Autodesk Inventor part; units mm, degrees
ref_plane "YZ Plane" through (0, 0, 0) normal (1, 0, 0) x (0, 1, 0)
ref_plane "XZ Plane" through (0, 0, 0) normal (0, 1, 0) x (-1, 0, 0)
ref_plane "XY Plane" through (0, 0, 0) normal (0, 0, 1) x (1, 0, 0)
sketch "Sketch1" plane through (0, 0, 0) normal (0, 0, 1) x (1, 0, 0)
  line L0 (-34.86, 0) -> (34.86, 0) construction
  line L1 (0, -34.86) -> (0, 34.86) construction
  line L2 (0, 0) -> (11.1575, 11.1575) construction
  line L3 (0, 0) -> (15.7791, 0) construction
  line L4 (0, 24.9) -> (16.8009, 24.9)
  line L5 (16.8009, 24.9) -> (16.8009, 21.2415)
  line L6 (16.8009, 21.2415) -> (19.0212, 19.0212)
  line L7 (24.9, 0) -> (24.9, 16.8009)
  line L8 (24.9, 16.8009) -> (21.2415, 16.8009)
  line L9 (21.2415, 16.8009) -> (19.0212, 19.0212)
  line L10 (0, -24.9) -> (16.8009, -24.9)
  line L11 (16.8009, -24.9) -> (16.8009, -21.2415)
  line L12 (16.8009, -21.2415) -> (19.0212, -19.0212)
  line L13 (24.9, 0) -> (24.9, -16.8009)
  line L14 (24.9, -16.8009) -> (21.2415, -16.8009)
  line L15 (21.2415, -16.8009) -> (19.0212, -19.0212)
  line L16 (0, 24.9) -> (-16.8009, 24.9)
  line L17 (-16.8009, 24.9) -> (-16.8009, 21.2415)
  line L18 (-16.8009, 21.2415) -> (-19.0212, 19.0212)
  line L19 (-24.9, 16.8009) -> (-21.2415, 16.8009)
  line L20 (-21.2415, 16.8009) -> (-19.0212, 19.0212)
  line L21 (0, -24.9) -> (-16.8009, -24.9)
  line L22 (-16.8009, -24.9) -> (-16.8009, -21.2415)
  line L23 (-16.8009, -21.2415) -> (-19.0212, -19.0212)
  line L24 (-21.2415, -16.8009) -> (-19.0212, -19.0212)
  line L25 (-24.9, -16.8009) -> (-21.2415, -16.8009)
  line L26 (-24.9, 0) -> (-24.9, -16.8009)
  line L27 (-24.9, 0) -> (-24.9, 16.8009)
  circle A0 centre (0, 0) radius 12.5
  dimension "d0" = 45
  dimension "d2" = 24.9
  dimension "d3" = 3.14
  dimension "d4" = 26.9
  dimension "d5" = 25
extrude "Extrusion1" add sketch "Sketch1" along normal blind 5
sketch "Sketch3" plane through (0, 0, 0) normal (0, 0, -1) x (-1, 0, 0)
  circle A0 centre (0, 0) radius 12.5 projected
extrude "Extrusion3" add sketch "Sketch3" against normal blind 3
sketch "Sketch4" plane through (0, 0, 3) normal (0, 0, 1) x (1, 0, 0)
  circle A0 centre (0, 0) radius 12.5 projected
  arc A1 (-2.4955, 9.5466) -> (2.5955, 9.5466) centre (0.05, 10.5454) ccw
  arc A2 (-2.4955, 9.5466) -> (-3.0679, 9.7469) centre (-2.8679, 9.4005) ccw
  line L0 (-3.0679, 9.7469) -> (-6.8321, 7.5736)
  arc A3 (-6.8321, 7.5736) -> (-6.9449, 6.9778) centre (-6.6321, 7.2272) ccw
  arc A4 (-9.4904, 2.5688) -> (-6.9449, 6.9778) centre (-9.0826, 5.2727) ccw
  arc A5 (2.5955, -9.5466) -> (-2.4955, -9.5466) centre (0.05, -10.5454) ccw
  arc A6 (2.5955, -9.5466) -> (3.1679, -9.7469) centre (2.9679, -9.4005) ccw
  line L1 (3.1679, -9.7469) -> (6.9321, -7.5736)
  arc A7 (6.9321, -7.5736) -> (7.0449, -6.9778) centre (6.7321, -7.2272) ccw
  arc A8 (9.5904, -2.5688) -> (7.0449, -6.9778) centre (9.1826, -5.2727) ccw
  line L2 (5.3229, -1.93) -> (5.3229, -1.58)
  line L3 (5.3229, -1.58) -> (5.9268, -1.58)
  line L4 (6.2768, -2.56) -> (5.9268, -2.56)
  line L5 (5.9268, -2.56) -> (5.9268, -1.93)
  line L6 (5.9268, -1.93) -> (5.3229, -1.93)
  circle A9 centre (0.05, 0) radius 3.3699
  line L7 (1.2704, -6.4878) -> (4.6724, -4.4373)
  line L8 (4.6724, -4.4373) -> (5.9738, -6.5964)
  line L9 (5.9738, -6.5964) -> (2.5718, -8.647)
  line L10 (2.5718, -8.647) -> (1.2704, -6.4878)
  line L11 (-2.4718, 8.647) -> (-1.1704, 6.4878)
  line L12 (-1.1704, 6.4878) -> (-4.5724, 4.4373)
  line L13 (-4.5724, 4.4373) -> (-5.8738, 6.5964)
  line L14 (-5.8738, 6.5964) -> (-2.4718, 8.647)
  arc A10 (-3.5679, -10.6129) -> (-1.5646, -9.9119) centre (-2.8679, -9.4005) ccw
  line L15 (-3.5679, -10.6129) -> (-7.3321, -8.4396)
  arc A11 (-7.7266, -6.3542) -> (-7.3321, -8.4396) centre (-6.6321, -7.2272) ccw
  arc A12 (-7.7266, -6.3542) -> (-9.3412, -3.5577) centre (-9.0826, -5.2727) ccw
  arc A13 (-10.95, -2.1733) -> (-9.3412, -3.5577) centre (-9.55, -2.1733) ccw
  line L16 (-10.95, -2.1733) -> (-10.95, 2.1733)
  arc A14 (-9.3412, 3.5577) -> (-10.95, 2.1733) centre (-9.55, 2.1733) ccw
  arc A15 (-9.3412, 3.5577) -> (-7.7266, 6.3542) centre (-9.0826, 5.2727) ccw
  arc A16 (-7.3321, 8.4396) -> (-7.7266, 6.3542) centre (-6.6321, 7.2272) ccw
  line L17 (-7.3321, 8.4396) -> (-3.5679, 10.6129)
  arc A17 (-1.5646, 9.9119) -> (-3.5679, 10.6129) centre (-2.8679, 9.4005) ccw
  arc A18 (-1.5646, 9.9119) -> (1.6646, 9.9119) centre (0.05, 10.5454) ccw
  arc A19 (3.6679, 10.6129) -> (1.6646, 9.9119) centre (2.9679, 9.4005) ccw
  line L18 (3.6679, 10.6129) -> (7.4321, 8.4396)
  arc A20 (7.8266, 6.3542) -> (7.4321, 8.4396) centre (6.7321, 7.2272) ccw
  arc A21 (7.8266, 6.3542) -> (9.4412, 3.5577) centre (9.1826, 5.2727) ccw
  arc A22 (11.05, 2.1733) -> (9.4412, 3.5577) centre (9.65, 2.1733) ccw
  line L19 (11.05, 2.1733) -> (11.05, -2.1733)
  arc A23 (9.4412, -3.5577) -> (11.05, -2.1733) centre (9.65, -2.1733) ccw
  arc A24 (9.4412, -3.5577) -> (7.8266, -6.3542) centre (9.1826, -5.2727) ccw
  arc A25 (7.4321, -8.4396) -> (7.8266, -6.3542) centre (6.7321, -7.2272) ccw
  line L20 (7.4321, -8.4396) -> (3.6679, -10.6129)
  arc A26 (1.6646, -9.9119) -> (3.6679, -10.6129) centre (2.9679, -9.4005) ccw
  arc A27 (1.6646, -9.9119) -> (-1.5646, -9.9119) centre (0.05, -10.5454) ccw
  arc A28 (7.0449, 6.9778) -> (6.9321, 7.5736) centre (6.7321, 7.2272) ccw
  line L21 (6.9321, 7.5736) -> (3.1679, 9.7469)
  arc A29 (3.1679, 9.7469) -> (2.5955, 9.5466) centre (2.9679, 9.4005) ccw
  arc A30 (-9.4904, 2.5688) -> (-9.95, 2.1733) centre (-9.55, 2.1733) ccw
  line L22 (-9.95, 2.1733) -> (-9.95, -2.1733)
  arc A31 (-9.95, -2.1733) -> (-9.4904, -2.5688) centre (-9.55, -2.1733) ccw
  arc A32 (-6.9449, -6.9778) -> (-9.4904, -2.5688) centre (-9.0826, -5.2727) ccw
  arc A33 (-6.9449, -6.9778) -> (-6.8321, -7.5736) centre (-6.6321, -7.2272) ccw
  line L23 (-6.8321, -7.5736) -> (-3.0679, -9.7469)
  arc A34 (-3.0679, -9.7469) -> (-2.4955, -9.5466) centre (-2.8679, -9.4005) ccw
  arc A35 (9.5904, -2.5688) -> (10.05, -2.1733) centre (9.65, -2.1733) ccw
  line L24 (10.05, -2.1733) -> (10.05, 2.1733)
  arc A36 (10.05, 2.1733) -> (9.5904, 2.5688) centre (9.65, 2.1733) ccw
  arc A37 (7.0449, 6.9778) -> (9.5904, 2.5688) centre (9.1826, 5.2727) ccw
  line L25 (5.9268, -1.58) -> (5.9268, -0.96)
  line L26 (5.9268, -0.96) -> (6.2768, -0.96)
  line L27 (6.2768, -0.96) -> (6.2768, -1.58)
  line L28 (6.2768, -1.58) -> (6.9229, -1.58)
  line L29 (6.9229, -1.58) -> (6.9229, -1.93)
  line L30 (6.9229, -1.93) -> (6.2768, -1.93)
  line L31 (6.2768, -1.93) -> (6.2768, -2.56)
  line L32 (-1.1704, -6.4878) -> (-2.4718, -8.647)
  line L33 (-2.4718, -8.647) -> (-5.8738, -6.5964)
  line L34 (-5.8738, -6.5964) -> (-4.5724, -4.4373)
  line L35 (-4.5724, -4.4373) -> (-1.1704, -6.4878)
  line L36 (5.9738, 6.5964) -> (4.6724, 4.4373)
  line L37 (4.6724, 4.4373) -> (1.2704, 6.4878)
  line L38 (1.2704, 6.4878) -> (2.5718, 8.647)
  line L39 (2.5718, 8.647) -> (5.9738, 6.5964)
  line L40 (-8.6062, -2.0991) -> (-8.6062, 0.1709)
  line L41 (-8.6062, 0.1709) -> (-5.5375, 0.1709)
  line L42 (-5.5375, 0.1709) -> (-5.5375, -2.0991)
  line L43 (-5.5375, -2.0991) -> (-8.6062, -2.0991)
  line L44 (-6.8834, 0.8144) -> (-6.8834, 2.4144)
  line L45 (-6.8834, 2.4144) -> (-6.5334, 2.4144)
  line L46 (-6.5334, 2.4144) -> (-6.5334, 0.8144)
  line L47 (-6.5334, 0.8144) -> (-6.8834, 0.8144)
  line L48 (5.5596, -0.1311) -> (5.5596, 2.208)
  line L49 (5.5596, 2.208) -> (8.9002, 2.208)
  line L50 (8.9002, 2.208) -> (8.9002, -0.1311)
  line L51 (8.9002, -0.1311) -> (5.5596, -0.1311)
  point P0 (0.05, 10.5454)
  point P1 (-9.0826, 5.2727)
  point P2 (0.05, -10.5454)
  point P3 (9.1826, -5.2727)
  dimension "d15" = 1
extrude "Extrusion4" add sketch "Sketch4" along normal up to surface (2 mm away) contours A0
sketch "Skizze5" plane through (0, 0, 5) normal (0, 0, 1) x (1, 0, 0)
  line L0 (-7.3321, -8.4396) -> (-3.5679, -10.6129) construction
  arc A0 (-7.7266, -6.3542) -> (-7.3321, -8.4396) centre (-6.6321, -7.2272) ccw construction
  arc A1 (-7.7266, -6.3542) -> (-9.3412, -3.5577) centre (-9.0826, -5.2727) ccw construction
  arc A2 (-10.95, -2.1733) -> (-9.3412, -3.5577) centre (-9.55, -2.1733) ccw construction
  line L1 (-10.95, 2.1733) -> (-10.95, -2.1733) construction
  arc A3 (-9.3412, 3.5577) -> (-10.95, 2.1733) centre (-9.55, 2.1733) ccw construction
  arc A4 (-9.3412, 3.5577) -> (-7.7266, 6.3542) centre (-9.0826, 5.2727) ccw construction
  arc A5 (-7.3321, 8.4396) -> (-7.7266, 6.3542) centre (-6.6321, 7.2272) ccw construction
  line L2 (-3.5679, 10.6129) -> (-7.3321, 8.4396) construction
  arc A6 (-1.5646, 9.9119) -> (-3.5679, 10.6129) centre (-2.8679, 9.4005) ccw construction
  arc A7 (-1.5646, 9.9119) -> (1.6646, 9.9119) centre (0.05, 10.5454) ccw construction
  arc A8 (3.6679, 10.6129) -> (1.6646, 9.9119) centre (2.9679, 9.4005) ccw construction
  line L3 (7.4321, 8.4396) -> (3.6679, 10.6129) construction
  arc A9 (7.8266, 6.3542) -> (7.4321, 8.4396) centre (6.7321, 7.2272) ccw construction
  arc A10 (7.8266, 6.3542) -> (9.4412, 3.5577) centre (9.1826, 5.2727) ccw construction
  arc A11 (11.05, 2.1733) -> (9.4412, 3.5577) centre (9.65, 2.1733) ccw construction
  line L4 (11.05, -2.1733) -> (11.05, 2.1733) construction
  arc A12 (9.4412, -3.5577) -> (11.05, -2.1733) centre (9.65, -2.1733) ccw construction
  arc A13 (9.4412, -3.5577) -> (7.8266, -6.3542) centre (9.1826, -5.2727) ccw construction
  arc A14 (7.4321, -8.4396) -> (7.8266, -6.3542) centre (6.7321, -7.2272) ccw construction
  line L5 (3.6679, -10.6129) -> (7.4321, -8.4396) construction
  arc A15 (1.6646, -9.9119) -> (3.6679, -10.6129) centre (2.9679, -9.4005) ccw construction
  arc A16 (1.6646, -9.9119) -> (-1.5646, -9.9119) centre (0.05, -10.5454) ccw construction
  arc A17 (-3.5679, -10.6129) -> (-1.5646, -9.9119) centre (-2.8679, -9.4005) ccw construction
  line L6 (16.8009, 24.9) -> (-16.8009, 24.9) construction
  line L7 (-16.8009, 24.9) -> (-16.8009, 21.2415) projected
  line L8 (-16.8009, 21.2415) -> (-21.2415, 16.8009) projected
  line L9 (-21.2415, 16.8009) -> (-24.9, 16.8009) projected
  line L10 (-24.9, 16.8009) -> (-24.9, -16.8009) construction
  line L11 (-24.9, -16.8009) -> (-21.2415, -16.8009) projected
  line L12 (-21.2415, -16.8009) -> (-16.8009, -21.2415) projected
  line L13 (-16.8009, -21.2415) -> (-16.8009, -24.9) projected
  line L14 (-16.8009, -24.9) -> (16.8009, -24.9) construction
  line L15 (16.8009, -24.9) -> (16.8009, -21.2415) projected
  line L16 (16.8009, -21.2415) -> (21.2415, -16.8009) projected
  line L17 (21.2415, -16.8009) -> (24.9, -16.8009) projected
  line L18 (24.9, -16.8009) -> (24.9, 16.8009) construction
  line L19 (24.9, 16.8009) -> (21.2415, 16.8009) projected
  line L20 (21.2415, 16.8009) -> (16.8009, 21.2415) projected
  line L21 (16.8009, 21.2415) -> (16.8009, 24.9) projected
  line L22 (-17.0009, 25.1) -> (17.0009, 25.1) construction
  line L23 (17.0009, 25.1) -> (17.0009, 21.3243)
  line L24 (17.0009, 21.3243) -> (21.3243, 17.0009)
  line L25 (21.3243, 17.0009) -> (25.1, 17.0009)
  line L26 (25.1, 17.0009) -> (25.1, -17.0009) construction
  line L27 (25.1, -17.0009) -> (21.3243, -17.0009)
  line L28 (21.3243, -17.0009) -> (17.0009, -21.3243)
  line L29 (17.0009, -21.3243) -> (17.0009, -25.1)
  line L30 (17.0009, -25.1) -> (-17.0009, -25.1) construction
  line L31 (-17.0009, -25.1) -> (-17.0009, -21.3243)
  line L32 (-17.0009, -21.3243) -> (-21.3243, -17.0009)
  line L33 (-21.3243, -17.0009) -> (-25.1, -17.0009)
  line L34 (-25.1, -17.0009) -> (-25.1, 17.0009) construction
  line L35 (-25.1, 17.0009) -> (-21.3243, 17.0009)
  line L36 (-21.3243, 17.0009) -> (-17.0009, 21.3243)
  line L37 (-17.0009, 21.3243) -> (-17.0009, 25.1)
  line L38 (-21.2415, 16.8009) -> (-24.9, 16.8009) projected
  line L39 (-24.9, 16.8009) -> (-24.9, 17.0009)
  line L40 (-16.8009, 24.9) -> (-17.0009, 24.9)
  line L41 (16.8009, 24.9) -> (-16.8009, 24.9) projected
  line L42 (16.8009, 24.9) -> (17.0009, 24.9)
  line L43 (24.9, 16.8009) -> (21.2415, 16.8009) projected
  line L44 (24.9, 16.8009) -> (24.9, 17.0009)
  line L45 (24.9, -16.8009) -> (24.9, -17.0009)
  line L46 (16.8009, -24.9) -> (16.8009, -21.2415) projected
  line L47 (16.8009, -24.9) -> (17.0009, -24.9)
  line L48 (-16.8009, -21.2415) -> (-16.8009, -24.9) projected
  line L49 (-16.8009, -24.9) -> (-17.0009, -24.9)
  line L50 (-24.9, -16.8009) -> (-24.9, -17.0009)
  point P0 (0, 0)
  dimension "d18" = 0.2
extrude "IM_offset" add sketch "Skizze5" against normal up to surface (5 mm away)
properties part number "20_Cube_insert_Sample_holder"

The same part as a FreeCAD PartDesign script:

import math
import FreeCAD as App
import Part
import Sketcher
from FreeCAD import Vector
Q = App.Units.Quantity

doc = App.newDocument("Part")
body = doc.addObject("PartDesign::Body", "Body")

# Sketch on XY plane
sketch1 = body.newObject("Sketcher::SketchObject", "Sketch")
sketch1.AttachmentSupport = (doc.getObject("XY_Plane"), [""])
sketch1.MapMode = "FlatFace"
sketch1.addGeometry(Part.LineSegment(Vector(16.8009, 24.9, 0), Vector(-16.8009, 24.9, 0)), False)
sketch1.addGeometry(Part.LineSegment(Vector(-16.8009, 24.9, 0), Vector(-16.8009, 21.2415, 0)), False)
sketch1.addGeometry(Part.LineSegment(Vector(-16.8009, 21.2415, 0), Vector(-21.2415, 16.8009, 0)), False)
sketch1.addGeometry(Part.LineSegment(Vector(-21.2415, 16.8009, 0), Vector(-24.9, 16.8009, 0)), False)
sketch1.addGeometry(Part.LineSegment(Vector(-24.9, 16.8009, 0), Vector(-24.9, -16.8009, 0)), False)
sketch1.addGeometry(Part.LineSegment(Vector(-24.9, -16.8009, 0), Vector(-21.2415, -16.8009, 0)), False)
sketch1.addGeometry(Part.LineSegment(Vector(-21.2415, -16.8009, 0), Vector(-16.8009, -21.2415, 0)), False)
sketch1.addGeometry(Part.LineSegment(Vector(-16.8009, -21.2415, 0), Vector(-16.8009, -24.9, 0)), False)
sketch1.addGeometry(Part.LineSegment(Vector(-16.8009, -24.9, 0), Vector(16.8009, -24.9, 0)), False)
sketch1.addGeometry(Part.LineSegment(Vector(16.8009, -24.9, 0), Vector(16.8009, -21.2415, 0)), False)
sketch1.addGeometry(Part.LineSegment(Vector(16.8009, -21.2415, 0), Vector(21.2415, -16.8009, 0)), False)
sketch1.addGeometry(Part.LineSegment(Vector(21.2415, -16.8009, 0), Vector(24.9, -16.8009, 0)), False)
sketch1.addGeometry(Part.LineSegment(Vector(24.9, -16.8009, 0), Vector(24.9, 16.8009, 0)), False)
sketch1.addGeometry(Part.LineSegment(Vector(24.9, 16.8009, 0), Vector(21.2415, 16.8009, 0)), False)
sketch1.addGeometry(Part.LineSegment(Vector(21.2415, 16.8009, 0), Vector(16.8009, 21.2415, 0)), False)
sketch1.addGeometry(Part.LineSegment(Vector(16.8009, 21.2415, 0), Vector(16.8009, 24.9, 0)), False)
sketch1.addGeometry(Part.Circle(Vector(0, 0, 0), Vector(0, 0, 1), 12.5), False)
sketch1.addConstraint(Sketcher.Constraint("Coincident", 0, 2, 1, 1))
sketch1.addConstraint(Sketcher.Constraint("Coincident", 1, 2, 2, 1))
sketch1.addConstraint(Sketcher.Constraint("Coincident", 2, 2, 3, 1))
sketch1.addConstraint(Sketcher.Constraint("Coincident", 3, 2, 4, 1))
sketch1.addConstraint(Sketcher.Constraint("Coincident", 4, 2, 5, 1))
sketch1.addConstraint(Sketcher.Constraint("Coincident", 5, 2, 6, 1))
sketch1.addConstraint(Sketcher.Constraint("Coincident", 6, 2, 7, 1))
sketch1.addConstraint(Sketcher.Constraint("Coincident", 7, 2, 8, 1))
sketch1.addConstraint(Sketcher.Constraint("Coincident", 8, 2, 9, 1))
sketch1.addConstraint(Sketcher.Constraint("Coincident", 9, 2, 10, 1))
sketch1.addConstraint(Sketcher.Constraint("Coincident", 10, 2, 11, 1))
sketch1.addConstraint(Sketcher.Constraint("Coincident", 11, 2, 12, 1))
sketch1.addConstraint(Sketcher.Constraint("Coincident", 12, 2, 13, 1))
sketch1.addConstraint(Sketcher.Constraint("Coincident", 13, 2, 14, 1))
sketch1.addConstraint(Sketcher.Constraint("Coincident", 14, 2, 15, 1))
sketch1.addConstraint(Sketcher.Constraint("Coincident", 15, 2, 0, 1))
sketch1.addConstraint(Sketcher.Constraint("Horizontal", 0))
sketch1.addConstraint(Sketcher.Constraint("Vertical", 1))
sketch1.addConstraint(Sketcher.Constraint("Horizontal", 3))
sketch1.addConstraint(Sketcher.Constraint("Vertical", 4))
sketch1.addConstraint(Sketcher.Constraint("Horizontal", 5))
sketch1.addConstraint(Sketcher.Constraint("Vertical", 7))
sketch1.addConstraint(Sketcher.Constraint("Horizontal", 8))
sketch1.addConstraint(Sketcher.Constraint("Vertical", 9))
sketch1.addConstraint(Sketcher.Constraint("Horizontal", 11))
sketch1.addConstraint(Sketcher.Constraint("Vertical", 12))
sketch1.addConstraint(Sketcher.Constraint("Horizontal", 13))
sketch1.addConstraint(Sketcher.Constraint("Vertical", 15))
sketch1.addConstraint(Sketcher.Constraint("Coincident", 16, 3, -1, 1))
sketch1.addConstraint(Sketcher.Constraint("Symmetric", 0, 2, 8, 2, -1, 1))
sketch1.addConstraint(Sketcher.Constraint("Symmetric", 2, 2, 10, 2, -1, 1))
sketch1.addConstraint(Sketcher.Constraint("Symmetric", 4, 2, 12, 2, -1, 1))
sketch1.addConstraint(Sketcher.Constraint("Symmetric", 6, 2, 14, 2, -1, 1))
sketch1.addConstraint(Sketcher.Constraint("Symmetric", 6, 2, 9, 2, -2))
sketch1.addConstraint(Sketcher.Constraint("Symmetric", 5, 2, 10, 2, -2))
sketch1.addConstraint(Sketcher.Constraint("Perpendicular", 2, 6))
sketch1.addConstraint(Sketcher.Constraint("Perpendicular", 6, 10))
sketch1.addConstraint(Sketcher.Constraint("Perpendicular", 10, 14))
sketch1.addConstraint(Sketcher.Constraint("Equal", 13, 1))
sketch1.addConstraint(Sketcher.Constraint("Equal", 8, 4))
sketch1.addConstraint(Sketcher.Constraint("Diameter", 16, 25.0))
sketch1.addConstraint(Sketcher.Constraint("DistanceY", -1, 1, 0, 2, 24.9))
sketch1.addConstraint(Sketcher.Constraint("Distance", 2, 6.28))
sketch1.addConstraint(Sketcher.Constraint("DistanceX", 0, 2, 0, 1, 33.6018))
pad1 = body.newObject("PartDesign::Pad", "Pad")
pad1.Profile = sketch1
pad1.Length = 5

# Sketch on XY plane
sketch2 = body.newObject("Sketcher::SketchObject", "Sketch001")
sketch2.AttachmentSupport = (doc.getObject("XY_Plane"), [""])
sketch2.MapMode = "FlatFace"
sketch2.addGeometry(Part.Circle(Vector(0, 0, 0), Vector(0, 0, 1), 12.5), False)
sketch2.addConstraint(Sketcher.Constraint("Coincident", 0, 3, -1, 1))
sketch2.addConstraint(Sketcher.Constraint("Diameter", 0, 25.0))
pad2 = body.newObject("PartDesign::Pad", "Pad001")
pad2.Profile = sketch2
pad2.Length = 3

# Sketch on XY plane
sketch3 = body.newObject("Sketcher::SketchObject", "Sketch002")
sketch3.AttachmentSupport = (doc.getObject("XY_Plane"), [""])
sketch3.MapMode = "FlatFace"
sketch3.AttachmentOffset = App.Placement(Vector(0, 0, 3), App.Rotation())
sketch3.addGeometry(Part.Circle(Vector(0, 0, 0), Vector(0, 0, 1), 12.5), False)
sketch3.addGeometry(Part.ArcOfCircle(Part.Circle(Vector(-2.8679, -9.4005, 0), Vector(0, 0, 1), 1.399969), math.radians(-120.000728), math.radians(-21.424474)), False)
sketch3.addGeometry(Part.LineSegment(Vector(-3.5679, -10.6129, 0), Vector(-7.3321, -8.4396, 0)), False)
sketch3.addGeometry(Part.ArcOfCircle(Part.Circle(Vector(-6.6321, -7.2272, 0), Vector(0, 0, 1), 1.400021), math.radians(141.42328), math.radians(239.999272)), False)
sketch3.addGeometry(Part.ArcOfCircle(Part.Circle(Vector(-9.0826, -5.2727, 0), Vector(0, 0, 1), 1.734468), math.radians(-38.574685), math.radians(98.57487)), False)
sketch3.addGeometry(Part.ArcOfCircle(Part.Circle(Vector(-9.55, -2.1733, 0), Vector(0, 0, 1), 1.4), math.radians(180), math.radians(278.576903)), False)
sketch3.addGeometry(Part.LineSegment(Vector(-10.95, -2.1733, 0), Vector(-10.95, 2.1733, 0)), False)
sketch3.addGeometry(Part.ArcOfCircle(Part.Circle(Vector(-9.55, 2.1733, 0), Vector(0, 0, 1), 1.400057), math.radians(81.423097), math.radians(180)), False)
sketch3.addGeometry(Part.ArcOfCircle(Part.Circle(Vector(-9.0826, 5.2727, 0), Vector(0, 0, 1), 1.734387), math.radians(-98.57487), math.radians(38.574685)), False)
sketch3.addGeometry(Part.ArcOfCircle(Part.Circle(Vector(-6.6321, 7.2272, 0), Vector(0, 0, 1), 1.399969), math.radians(120.000728), math.radians(218.57672)), False)
sketch3.addGeometry(Part.LineSegment(Vector(-7.3321, 8.4396, 0), Vector(-3.5679, 10.6129, 0)), False)
sketch3.addGeometry(Part.ArcOfCircle(Part.Circle(Vector(-2.8679, 9.4005, 0), Vector(0, 0, 1), 1.400043), math.radians(21.424474), math.radians(120.000728)), False)
sketch3.addGeometry(Part.ArcOfCircle(Part.Circle(Vector(0.05, 10.5454, 0), Vector(0, 0, 1), 1.734432), math.radians(-158.577081), math.radians(-21.422919)), False)
sketch3.addGeometry(Part.ArcOfCircle(Part.Circle(Vector(2.9679, 9.4005, 0), Vector(0, 0, 1), 1.399969), math.radians(59.999272), math.radians(158.575526)), False)
sketch3.addGeometry(Part.LineSegment(Vector(3.6679, 10.6129, 0), Vector(7.4321, 8.4396, 0)), False)
sketch3.addGeometry(Part.ArcOfCircle(Part.Circle(Vector(6.7321, 7.2272, 0), Vector(0, 0, 1), 1.400021), math.radians(-38.57672), math.radians(59.999272)), False)
sketch3.addGeometry(Part.ArcOfCircle(Part.Circle(Vector(9.1826, 5.2727, 0), Vector(0, 0, 1), 1.734468), math.radians(141.425315), math.radians(278.57487)), False)
sketch3.addGeometry(Part.ArcOfCircle(Part.Circle(Vector(9.65, 2.1733, 0), Vector(0, 0, 1), 1.4), math.radians(0), math.radians(98.576903)), False)
sketch3.addGeometry(Part.LineSegment(Vector(11.05, 2.1733, 0), Vector(11.05, -2.1733, 0)), False)
sketch3.addGeometry(Part.ArcOfCircle(Part.Circle(Vector(9.65, -2.1733, 0), Vector(0, 0, 1), 1.400057), math.radians(-98.576903), math.radians(0)), False)
sketch3.addGeometry(Part.ArcOfCircle(Part.Circle(Vector(9.1826, -5.2727, 0), Vector(0, 0, 1), 1.734387), math.radians(81.42513), math.radians(218.574685)), False)
sketch3.addGeometry(Part.ArcOfCircle(Part.Circle(Vector(6.7321, -7.2272, 0), Vector(0, 0, 1), 1.399969), math.radians(-59.999272), math.radians(38.57672)), False)
sketch3.addGeometry(Part.LineSegment(Vector(7.4321, -8.4396, 0), Vector(3.6679, -10.6129, 0)), False)
sketch3.addGeometry(Part.ArcOfCircle(Part.Circle(Vector(2.9679, -9.4005, 0), Vector(0, 0, 1), 1.400043), math.radians(-158.575526), math.radians(-59.999272)), False)
sketch3.addGeometry(Part.ArcOfCircle(Part.Circle(Vector(0.05, -10.5454, 0), Vector(0, 0, 1), 1.734432), math.radians(21.422919), math.radians(158.577081)), False)
sketch3.addConstraint(Sketcher.Constraint("Tangent", 1, 1, 2, 1))
sketch3.addConstraint(Sketcher.Constraint("Tangent", 2, 2, 3, 2))
sketch3.addConstraint(Sketcher.Constraint("Tangent", 3, 1, 4, 1))
sketch3.addConstraint(Sketcher.Constraint("Tangent", 4, 2, 5, 2))
sketch3.addConstraint(Sketcher.Constraint("Tangent", 5, 1, 6, 1))
sketch3.addConstraint(Sketcher.Constraint("Tangent", 6, 2, 7, 2))
sketch3.addConstraint(Sketcher.Constraint("Tangent", 7, 1, 8, 1))
sketch3.addConstraint(Sketcher.Constraint("Tangent", 8, 2, 9, 2))
sketch3.addConstraint(Sketcher.Constraint("Tangent", 9, 1, 10, 1))
sketch3.addConstraint(Sketcher.Constraint("Tangent", 10, 2, 11, 2))
sketch3.addConstraint(Sketcher.Constraint("Tangent", 11, 1, 12, 1))
sketch3.addConstraint(Sketcher.Constraint("Tangent", 12, 2, 13, 2))
sketch3.addConstraint(Sketcher.Constraint("Tangent", 13, 1, 14, 1))
sketch3.addConstraint(Sketcher.Constraint("Tangent", 14, 2, 15, 2))
sketch3.addConstraint(Sketcher.Constraint("Tangent", 15, 1, 16, 1))
sketch3.addConstraint(Sketcher.Constraint("Tangent", 16, 2, 17, 2))
sketch3.addConstraint(Sketcher.Constraint("Tangent", 17, 1, 18, 1))
sketch3.addConstraint(Sketcher.Constraint("Tangent", 18, 2, 19, 2))
sketch3.addConstraint(Sketcher.Constraint("Tangent", 19, 1, 20, 1))
sketch3.addConstraint(Sketcher.Constraint("Tangent", 20, 2, 21, 2))
sketch3.addConstraint(Sketcher.Constraint("Tangent", 21, 1, 22, 1))
sketch3.addConstraint(Sketcher.Constraint("Tangent", 22, 2, 23, 2))
sketch3.addConstraint(Sketcher.Constraint("Tangent", 23, 1, 24, 1))
sketch3.addConstraint(Sketcher.Constraint("Tangent", 24, 2, 1, 2))
sketch3.addConstraint(Sketcher.Constraint("Vertical", 6))
sketch3.addConstraint(Sketcher.Constraint("Vertical", 18))
sketch3.addConstraint(Sketcher.Constraint("Coincident", 0, 3, -1, 1))
sketch3.addConstraint(Sketcher.Constraint("Equal", 1, 3))
sketch3.addConstraint(Sketcher.Constraint("Equal", 3, 5))
sketch3.addConstraint(Sketcher.Constraint("Equal", 5, 7))
sketch3.addConstraint(Sketcher.Constraint("Equal", 4, 8))
sketch3.addConstraint(Sketcher.Constraint("Equal", 7, 9))
sketch3.addConstraint(Sketcher.Constraint("Equal", 9, 11))
sketch3.addConstraint(Sketcher.Constraint("Equal", 8, 12))
sketch3.addConstraint(Sketcher.Constraint("Equal", 11, 13))
sketch3.addConstraint(Sketcher.Constraint("Equal", 13, 15))
sketch3.addConstraint(Sketcher.Constraint("Equal", 12, 16))
sketch3.addConstraint(Sketcher.Constraint("Equal", 15, 17))
sketch3.addConstraint(Sketcher.Constraint("Equal", 17, 19))
sketch3.addConstraint(Sketcher.Constraint("Equal", 16, 20))
sketch3.addConstraint(Sketcher.Constraint("Equal", 19, 21))
sketch3.addConstraint(Sketcher.Constraint("Equal", 21, 23))
sketch3.addConstraint(Sketcher.Constraint("Equal", 20, 24))
sketch3.addConstraint(Sketcher.Constraint("Symmetric", 4, 3, 8, 3, -1))
sketch3.addConstraint(Sketcher.Constraint("Symmetric", 1, 3, 11, 3, -1))
sketch3.addConstraint(Sketcher.Constraint("Symmetric", 16, 3, 20, 3, -1))
sketch3.addConstraint(Sketcher.Constraint("Symmetric", 13, 3, 23, 3, -1))
sketch3.addConstraint(Sketcher.Constraint("Parallel", 2, 14))
sketch3.addConstraint(Sketcher.Constraint("Parallel", 10, 22))
sketch3.addConstraint(Sketcher.Constraint("Horizontal", 11, 3, 13, 3))
sketch3.addConstraint(Sketcher.Constraint("Horizontal", 9, 3, 15, 3))
sketch3.addConstraint(Sketcher.Constraint("Horizontal", 8, 3, 16, 3))
sketch3.addConstraint(Sketcher.Constraint("Horizontal", 7, 3, 17, 3))
sketch3.addConstraint(Sketcher.Constraint("Horizontal", 3, 3, 21, 3))
sketch3.addConstraint(Sketcher.Constraint("Diameter", 0, 25.0))
sketch3.addConstraint(Sketcher.Constraint("Radius", 1, 1.4))
sketch3.addConstraint(Sketcher.Constraint("Angle", 2, Q("149.9996 deg")))
sketch3.addConstraint(Sketcher.Constraint("Radius", 4, 1.7345))
sketch3.addConstraint(Sketcher.Constraint("DistanceY", 3, 3, 8, 3, 12.5))
sketch3.addConstraint(Sketcher.Constraint("DistanceX", 7, 3, 12, 3, 9.6))
sketch3.addConstraint(Sketcher.Constraint("DistanceX", 9, 3, 13, 3, 9.6))
sketch3.addConstraint(Sketcher.Constraint("DistanceX", 5, 3, -1, 1, 9.55))
sketch3.addConstraint(Sketcher.Constraint("DistanceY", 6, 1, 6, 2, 4.3466))
sketch3.addConstraint(Sketcher.Constraint("DistanceX", 1, 3, -1, 1, 2.868))
pad3 = body.newObject("PartDesign::Pad", "Pad002")
pad3.Profile = sketch3
pad3.Length = 2

# Sketch on XY plane
sketch4 = body.newObject("Sketcher::SketchObject", "Sketch003")
sketch4.AttachmentSupport = (doc.getObject("XY_Plane"), [""])
sketch4.MapMode = "FlatFace"
sketch4.AttachmentOffset = App.Placement(Vector(0, 0, 5), App.Rotation())
sketch4.addGeometry(Part.LineSegment(Vector(-16.8009, 21.2415, 0), Vector(-16.8009, 24.9, 0)), False)
sketch4.addGeometry(Part.LineSegment(Vector(-16.8009, 24.9, 0), Vector(-17.0009, 24.9, 0)), False)
sketch4.addGeometry(Part.LineSegment(Vector(-17.0009, 24.9, 0), Vector(-17.0009, 21.3243, 0)), False)
sketch4.addGeometry(Part.LineSegment(Vector(-17.0009, 21.3243, 0), Vector(-21.3243, 17.0009, 0)), False)
sketch4.addGeometry(Part.LineSegment(Vector(-21.3243, 17.0009, 0), Vector(-24.9, 17.0009, 0)), False)
sketch4.addGeometry(Part.LineSegment(Vector(-24.9, 17.0009, 0), Vector(-24.9, 16.8009, 0)), False)
sketch4.addGeometry(Part.LineSegment(Vector(-24.9, 16.8009, 0), Vector(-21.2415, 16.8009, 0)), False)
sketch4.addGeometry(Part.LineSegment(Vector(-21.2415, 16.8009, 0), Vector(-16.8009, 21.2415, 0)), False)
sketch4.addGeometry(Part.LineSegment(Vector(17.0009, 24.9, 0), Vector(16.8009, 24.9, 0)), False)
sketch4.addGeometry(Part.LineSegment(Vector(16.8009, 24.9, 0), Vector(16.8009, 21.2415, 0)), False)
sketch4.addGeometry(Part.LineSegment(Vector(16.8009, 21.2415, 0), Vector(21.2415, 16.8009, 0)), False)
sketch4.addGeometry(Part.LineSegment(Vector(21.2415, 16.8009, 0), Vector(24.9, 16.8009, 0)), False)
sketch4.addGeometry(Part.LineSegment(Vector(24.9, 16.8009, 0), Vector(24.9, 17.0009, 0)), False)
sketch4.addGeometry(Part.LineSegment(Vector(24.9, 17.0009, 0), Vector(21.3243, 17.0009, 0)), False)
sketch4.addGeometry(Part.LineSegment(Vector(21.3243, 17.0009, 0), Vector(17.0009, 21.3243, 0)), False)
sketch4.addGeometry(Part.LineSegment(Vector(17.0009, 21.3243, 0), Vector(17.0009, 24.9, 0)), False)
sketch4.addGeometry(Part.LineSegment(Vector(-21.2415, -16.8009, 0), Vector(-24.9, -16.8009, 0)), False)
sketch4.addGeometry(Part.LineSegment(Vector(-24.9, -16.8009, 0), Vector(-24.9, -17.0009, 0)), False)
sketch4.addGeometry(Part.LineSegment(Vector(-24.9, -17.0009, 0), Vector(-21.3243, -17.0009, 0)), False)
sketch4.addGeometry(Part.LineSegment(Vector(-21.3243, -17.0009, 0), Vector(-17.0009, -21.3243, 0)), False)
sketch4.addGeometry(Part.LineSegment(Vector(-17.0009, -21.3243, 0), Vector(-17.0009, -24.9, 0)), False)
sketch4.addGeometry(Part.LineSegment(Vector(-17.0009, -24.9, 0), Vector(-16.8009, -24.9, 0)), False)
sketch4.addGeometry(Part.LineSegment(Vector(-16.8009, -24.9, 0), Vector(-16.8009, -21.2415, 0)), False)
sketch4.addGeometry(Part.LineSegment(Vector(-16.8009, -21.2415, 0), Vector(-21.2415, -16.8009, 0)), False)
sketch4.addGeometry(Part.LineSegment(Vector(16.8009, -21.2415, 0), Vector(16.8009, -24.9, 0)), False)
sketch4.addGeometry(Part.LineSegment(Vector(16.8009, -24.9, 0), Vector(17.0009, -24.9, 0)), False)
sketch4.addGeometry(Part.LineSegment(Vector(17.0009, -24.9, 0), Vector(17.0009, -21.3243, 0)), False)
sketch4.addGeometry(Part.LineSegment(Vector(17.0009, -21.3243, 0), Vector(21.3243, -17.0009, 0)), False)
sketch4.addGeometry(Part.LineSegment(Vector(21.3243, -17.0009, 0), Vector(24.9, -17.0009, 0)), False)
sketch4.addGeometry(Part.LineSegment(Vector(24.9, -17.0009, 0), Vector(24.9, -16.8009, 0)), False)
sketch4.addGeometry(Part.LineSegment(Vector(24.9, -16.8009, 0), Vector(21.2415, -16.8009, 0)), False)
sketch4.addGeometry(Part.LineSegment(Vector(21.2415, -16.8009, 0), Vector(16.8009, -21.2415, 0)), False)
sketch4.addConstraint(Sketcher.Constraint("Coincident", 0, 2, 1, 1))
sketch4.addConstraint(Sketcher.Constraint("Coincident", 1, 2, 2, 1))
sketch4.addConstraint(Sketcher.Constraint("Coincident", 2, 2, 3, 1))
sketch4.addConstraint(Sketcher.Constraint("Coincident", 3, 2, 4, 1))
sketch4.addConstraint(Sketcher.Constraint("Coincident", 4, 2, 5, 1))
sketch4.addConstraint(Sketcher.Constraint("Coincident", 5, 2, 6, 1))
sketch4.addConstraint(Sketcher.Constraint("Coincident", 6, 2, 7, 1))
sketch4.addConstraint(Sketcher.Constraint("Coincident", 7, 2, 0, 1))
sketch4.addConstraint(Sketcher.Constraint("Coincident", 8, 2, 9, 1))
sketch4.addConstraint(Sketcher.Constraint("Coincident", 9, 2, 10, 1))
sketch4.addConstraint(Sketcher.Constraint("Coincident", 10, 2, 11, 1))
sketch4.addConstraint(Sketcher.Constraint("Coincident", 11, 2, 12, 1))
sketch4.addConstraint(Sketcher.Constraint("Coincident", 12, 2, 13, 1))
sketch4.addConstraint(Sketcher.Constraint("Coincident", 13, 2, 14, 1))
sketch4.addConstraint(Sketcher.Constraint("Coincident", 14, 2, 15, 1))
sketch4.addConstraint(Sketcher.Constraint("Coincident", 15, 2, 8, 1))
sketch4.addConstraint(Sketcher.Constraint("Coincident", 16, 2, 17, 1))
sketch4.addConstraint(Sketcher.Constraint("Coincident", 17, 2, 18, 1))
sketch4.addConstraint(Sketcher.Constraint("Coincident", 18, 2, 19, 1))
sketch4.addConstraint(Sketcher.Constraint("Coincident", 19, 2, 20, 1))
sketch4.addConstraint(Sketcher.Constraint("Coincident", 20, 2, 21, 1))
sketch4.addConstraint(Sketcher.Constraint("Coincident", 21, 2, 22, 1))
sketch4.addConstraint(Sketcher.Constraint("Coincident", 22, 2, 23, 1))
sketch4.addConstraint(Sketcher.Constraint("Coincident", 23, 2, 16, 1))
sketch4.addConstraint(Sketcher.Constraint("Coincident", 24, 2, 25, 1))
sketch4.addConstraint(Sketcher.Constraint("Coincident", 25, 2, 26, 1))
sketch4.addConstraint(Sketcher.Constraint("Coincident", 26, 2, 27, 1))
sketch4.addConstraint(Sketcher.Constraint("Coincident", 27, 2, 28, 1))
sketch4.addConstraint(Sketcher.Constraint("Coincident", 28, 2, 29, 1))
sketch4.addConstraint(Sketcher.Constraint("Coincident", 29, 2, 30, 1))
sketch4.addConstraint(Sketcher.Constraint("Coincident", 30, 2, 31, 1))
sketch4.addConstraint(Sketcher.Constraint("Coincident", 31, 2, 24, 1))
sketch4.addConstraint(Sketcher.Constraint("Vertical", 0))
sketch4.addConstraint(Sketcher.Constraint("Horizontal", 1))
sketch4.addConstraint(Sketcher.Constraint("Vertical", 2))
sketch4.addConstraint(Sketcher.Constraint("Horizontal", 4))
sketch4.addConstraint(Sketcher.Constraint("Vertical", 5))
sketch4.addConstraint(Sketcher.Constraint("Horizontal", 6))
sketch4.addConstraint(Sketcher.Constraint("Horizontal", 8))
sketch4.addConstraint(Sketcher.Constraint("Vertical", 9))
sketch4.addConstraint(Sketcher.Constraint("Horizontal", 11))
sketch4.addConstraint(Sketcher.Constraint("Vertical", 12))
sketch4.addConstraint(Sketcher.Constraint("Horizontal", 13))
sketch4.addConstraint(Sketcher.Constraint("Vertical", 15))
sketch4.addConstraint(Sketcher.Constraint("Horizontal", 16))
sketch4.addConstraint(Sketcher.Constraint("Vertical", 17))
sketch4.addConstraint(Sketcher.Constraint("Horizontal", 18))
sketch4.addConstraint(Sketcher.Constraint("Vertical", 20))
sketch4.addConstraint(Sketcher.Constraint("Horizontal", 21))
sketch4.addConstraint(Sketcher.Constraint("Vertical", 22))
sketch4.addConstraint(Sketcher.Constraint("Vertical", 24))
sketch4.addConstraint(Sketcher.Constraint("Horizontal", 25))
sketch4.addConstraint(Sketcher.Constraint("Vertical", 26))
sketch4.addConstraint(Sketcher.Constraint("Horizontal", 28))
sketch4.addConstraint(Sketcher.Constraint("Vertical", 29))
sketch4.addConstraint(Sketcher.Constraint("Horizontal", 30))
sketch4.addConstraint(Sketcher.Constraint("Symmetric", 11, 2, 16, 2, -1, 1))
sketch4.addConstraint(Sketcher.Constraint("Symmetric", 13, 2, 18, 2, -1, 1))
sketch4.addConstraint(Sketcher.Constraint("Symmetric", 14, 2, 19, 2, -1, 1))
sketch4.addConstraint(Sketcher.Constraint("Symmetric", 8, 2, 21, 2, -1, 1))
sketch4.addConstraint(Sketcher.Constraint("Symmetric", 0, 2, 24, 2, -1, 1))
sketch4.addConstraint(Sketcher.Constraint("Symmetric", 2, 2, 26, 2, -1, 1))
sketch4.addConstraint(Sketcher.Constraint("Symmetric", 3, 2, 27, 2, -1, 1))
sketch4.addConstraint(Sketcher.Constraint("Symmetric", 5, 2, 29, 2, -1, 1))
sketch4.addConstraint(Sketcher.Constraint("Symmetric", 0, 2, 8, 2, -2))
sketch4.addConstraint(Sketcher.Constraint("Symmetric", 6, 2, 10, 2, -2))
sketch4.addConstraint(Sketcher.Constraint("Symmetric", 4, 2, 12, 2, -2))
sketch4.addConstraint(Sketcher.Constraint("Symmetric", 2, 2, 14, 2, -2))
sketch4.addConstraint(Sketcher.Constraint("Parallel", 3, 7))
sketch4.addConstraint(Sketcher.Constraint("Perpendicular", 7, 10))
sketch4.addConstraint(Sketcher.Constraint("Parallel", 10, 14))
sketch4.addConstraint(Sketcher.Constraint("Parallel", 19, 23))
sketch4.addConstraint(Sketcher.Constraint("Parallel", 27, 31))
sketch4.addConstraint(Sketcher.Constraint("Horizontal", 7, 2, 9, 2))
sketch4.addConstraint(Sketcher.Constraint("Horizontal", 22, 2, 31, 2))
sketch4.addConstraint(Sketcher.Constraint("Vertical", 6, 2, 23, 2))
sketch4.addConstraint(Sketcher.Constraint("Equal", 30, 0))
sketch4.addConstraint(Sketcher.Constraint("Equal", 28, 2))
sketch4.addConstraint(Sketcher.Constraint("DistanceX", 1, 2, 1, 1, 0.2))
sketch4.addConstraint(Sketcher.Constraint("DistanceY", -1, 1, 0, 2, 24.9))
sketch4.addConstraint(Sketcher.Constraint("DistanceX", 4, 2, -1, 1, 24.9))
sketch4.addConstraint(Sketcher.Constraint("Distance", 7, 6.28))
sketch4.addConstraint(Sketcher.Constraint("DistanceX", 4, 2, 4, 1, 3.5757))
sketch4.addConstraint(Sketcher.Constraint("DistanceX", 6, 1, 6, 2, 3.6585))
pad4 = body.newObject("PartDesign::Pad", "Pad003")
pad4.Profile = sketch4
pad4.Length = 5
pad4.Reversed = True

doc.recompute()
